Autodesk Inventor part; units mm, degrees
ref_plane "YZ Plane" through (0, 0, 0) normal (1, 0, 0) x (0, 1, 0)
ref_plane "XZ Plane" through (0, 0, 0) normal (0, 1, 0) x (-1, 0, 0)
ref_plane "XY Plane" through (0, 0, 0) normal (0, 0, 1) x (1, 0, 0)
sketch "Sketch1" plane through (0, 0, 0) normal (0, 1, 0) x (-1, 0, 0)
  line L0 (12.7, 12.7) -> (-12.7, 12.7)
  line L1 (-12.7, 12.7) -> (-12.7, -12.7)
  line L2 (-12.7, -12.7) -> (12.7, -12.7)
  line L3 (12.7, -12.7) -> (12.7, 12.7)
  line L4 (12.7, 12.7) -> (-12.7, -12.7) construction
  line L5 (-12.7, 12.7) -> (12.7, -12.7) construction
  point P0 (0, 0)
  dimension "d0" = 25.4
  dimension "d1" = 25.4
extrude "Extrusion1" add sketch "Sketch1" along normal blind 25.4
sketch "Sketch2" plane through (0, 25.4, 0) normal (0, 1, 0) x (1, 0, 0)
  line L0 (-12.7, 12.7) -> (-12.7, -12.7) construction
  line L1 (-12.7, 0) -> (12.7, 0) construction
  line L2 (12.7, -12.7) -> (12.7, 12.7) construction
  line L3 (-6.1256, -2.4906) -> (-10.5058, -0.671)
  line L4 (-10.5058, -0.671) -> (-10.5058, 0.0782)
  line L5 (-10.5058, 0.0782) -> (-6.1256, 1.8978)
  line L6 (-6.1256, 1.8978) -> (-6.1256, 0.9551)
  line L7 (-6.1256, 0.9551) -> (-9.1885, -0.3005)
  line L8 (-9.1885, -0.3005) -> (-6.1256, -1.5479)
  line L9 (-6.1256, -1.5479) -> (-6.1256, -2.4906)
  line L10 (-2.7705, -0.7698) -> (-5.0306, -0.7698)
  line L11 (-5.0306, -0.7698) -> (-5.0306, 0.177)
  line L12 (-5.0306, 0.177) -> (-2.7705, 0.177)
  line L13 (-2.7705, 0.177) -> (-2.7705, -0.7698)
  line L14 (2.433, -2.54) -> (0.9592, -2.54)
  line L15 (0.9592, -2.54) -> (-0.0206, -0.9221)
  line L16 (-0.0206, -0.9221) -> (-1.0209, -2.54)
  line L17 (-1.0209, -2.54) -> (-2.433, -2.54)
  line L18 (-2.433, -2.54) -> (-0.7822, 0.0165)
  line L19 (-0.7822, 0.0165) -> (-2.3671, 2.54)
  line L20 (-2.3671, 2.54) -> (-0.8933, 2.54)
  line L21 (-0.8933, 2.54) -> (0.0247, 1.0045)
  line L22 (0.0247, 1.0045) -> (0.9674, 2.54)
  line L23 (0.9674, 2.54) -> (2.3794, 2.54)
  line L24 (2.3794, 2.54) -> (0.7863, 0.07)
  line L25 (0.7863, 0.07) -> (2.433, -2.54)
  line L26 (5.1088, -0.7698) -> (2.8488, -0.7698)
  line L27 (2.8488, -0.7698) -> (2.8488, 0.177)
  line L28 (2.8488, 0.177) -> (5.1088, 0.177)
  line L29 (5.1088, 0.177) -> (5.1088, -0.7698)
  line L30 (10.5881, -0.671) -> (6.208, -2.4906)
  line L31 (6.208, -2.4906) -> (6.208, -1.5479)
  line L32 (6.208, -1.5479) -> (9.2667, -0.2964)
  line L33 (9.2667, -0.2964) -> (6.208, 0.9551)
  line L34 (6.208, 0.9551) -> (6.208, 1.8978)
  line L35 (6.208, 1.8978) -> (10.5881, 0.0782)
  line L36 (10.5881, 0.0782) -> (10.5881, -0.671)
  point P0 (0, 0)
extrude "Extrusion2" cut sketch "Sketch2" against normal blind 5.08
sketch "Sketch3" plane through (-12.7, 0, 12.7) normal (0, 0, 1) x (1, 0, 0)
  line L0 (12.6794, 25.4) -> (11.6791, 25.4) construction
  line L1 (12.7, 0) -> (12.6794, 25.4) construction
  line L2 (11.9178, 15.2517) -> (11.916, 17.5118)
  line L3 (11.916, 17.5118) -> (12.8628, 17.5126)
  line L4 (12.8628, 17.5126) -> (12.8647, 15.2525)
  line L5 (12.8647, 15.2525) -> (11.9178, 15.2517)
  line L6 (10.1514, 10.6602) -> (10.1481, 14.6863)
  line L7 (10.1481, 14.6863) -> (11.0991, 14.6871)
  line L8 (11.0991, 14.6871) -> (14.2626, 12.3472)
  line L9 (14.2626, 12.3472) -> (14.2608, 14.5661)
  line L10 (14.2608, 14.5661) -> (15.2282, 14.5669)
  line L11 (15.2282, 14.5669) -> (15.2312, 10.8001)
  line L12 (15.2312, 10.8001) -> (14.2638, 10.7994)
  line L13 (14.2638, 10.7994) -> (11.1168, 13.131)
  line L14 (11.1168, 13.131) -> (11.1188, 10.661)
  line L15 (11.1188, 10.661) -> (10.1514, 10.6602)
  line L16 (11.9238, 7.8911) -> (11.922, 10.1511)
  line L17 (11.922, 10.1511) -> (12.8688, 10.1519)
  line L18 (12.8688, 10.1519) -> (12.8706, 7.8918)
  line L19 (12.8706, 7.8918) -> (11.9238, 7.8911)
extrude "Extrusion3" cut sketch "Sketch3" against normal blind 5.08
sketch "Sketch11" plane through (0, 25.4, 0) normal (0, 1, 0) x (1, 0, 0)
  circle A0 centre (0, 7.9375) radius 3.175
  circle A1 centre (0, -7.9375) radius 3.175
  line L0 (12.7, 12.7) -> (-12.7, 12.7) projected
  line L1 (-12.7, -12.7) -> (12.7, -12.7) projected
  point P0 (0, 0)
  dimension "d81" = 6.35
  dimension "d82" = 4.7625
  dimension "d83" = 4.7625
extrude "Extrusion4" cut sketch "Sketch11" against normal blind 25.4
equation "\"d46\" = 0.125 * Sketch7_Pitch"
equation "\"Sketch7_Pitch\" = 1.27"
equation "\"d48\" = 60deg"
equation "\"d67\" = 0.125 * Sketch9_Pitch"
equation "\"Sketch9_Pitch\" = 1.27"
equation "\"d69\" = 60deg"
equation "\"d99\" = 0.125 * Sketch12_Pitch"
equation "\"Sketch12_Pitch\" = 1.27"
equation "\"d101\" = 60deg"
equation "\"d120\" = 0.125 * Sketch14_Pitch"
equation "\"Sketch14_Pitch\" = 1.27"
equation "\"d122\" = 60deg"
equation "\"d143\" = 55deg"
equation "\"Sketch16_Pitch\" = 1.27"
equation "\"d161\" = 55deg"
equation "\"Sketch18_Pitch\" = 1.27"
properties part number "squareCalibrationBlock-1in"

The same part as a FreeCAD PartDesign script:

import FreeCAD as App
import Part
import Sketcher
Q = App.Units.Quantity

doc = App.newDocument("Part")
body = doc.addObject("PartDesign::Body", "Body")

# Sketch on XZ plane
sketch1 = body.newObject("Sketcher::SketchObject", "Sketch")
sketch1.AttachmentSupport = (doc.getObject("XZ_Plane"), [""])
sketch1.MapMode = "FlatFace"
sketch1.addGeometry([
    Part.LineSegment(App.Vector(-13, -13, 0), App.Vector(-13, 13, 0)),
    Part.LineSegment(App.Vector(-13, 13, 0), App.Vector(13, 13, 0)),
    Part.LineSegment(App.Vector(13, 13, 0), App.Vector(13, -13, 0)),
    Part.LineSegment(App.Vector(13, -13, 0), App.Vector(-13, -13, 0)),
], False)
sketch1.addConstraint([
    Sketcher.Constraint("Coincident", 0, 2, 1, 1),
    Sketcher.Constraint("Coincident", 1, 2, 2, 1),
    Sketcher.Constraint("Coincident", 2, 2, 3, 1),
    Sketcher.Constraint("Coincident", 3, 2, 0, 1),
    Sketcher.Constraint("Vertical", 0),
    Sketcher.Constraint("Horizontal", 1),
    Sketcher.Constraint("Vertical", 2),
    Sketcher.Constraint("Horizontal", 3),
    Sketcher.Constraint("Symmetric", 0, 2, 2, 2, -1, 1),
    Sketcher.Constraint("Equal", 3, 0),
    Sketcher.Constraint("DistanceX", 1, 1, 1, 2, Q("1 in")),
])
pad1 = body.newObject("PartDesign::Pad", "Pad")
pad1.Profile = sketch1
pad1.Length = Q("1 in")
pad1.Reversed = True

# Sketch on XZ plane
sketch2 = body.newObject("Sketcher::SketchObject", "Sketch001")
sketch2.AttachmentSupport = (doc.getObject("XZ_Plane"), [""])
sketch2.MapMode = "FlatFace"
sketch2.AttachmentOffset = App.Placement(App.Vector(0, 0, -1 * 25.4), App.Rotation())
sketch2.addGeometry([
    Part.LineSegment(App.Vector(-10.5, 0.7, 0), App.Vector(-6.1, 2.5, 0)),  # 0
    Part.LineSegment(App.Vector(-6.1, 2.5, 0), App.Vector(-6.1, 1.5, 0)),  # 1
    Part.LineSegment(App.Vector(-6.1, 1.5, 0), App.Vector(-9.2, 0.3, 0)),  # 2
    Part.LineSegment(App.Vector(-9.2, 0.3, 0), App.Vector(-6.1, -1, 0)),  # 3
    Part.LineSegment(App.Vector(-6.1, -1, 0), App.Vector(-6.1, -1.9, 0)),  # 4
    Part.LineSegment(App.Vector(-6.1, -1.9, 0), App.Vector(-10.5, -0.1, 0)),  # 5
    Part.LineSegment(App.Vector(-10.5, -0.1, 0), App.Vector(-10.5, 0.7, 0)),  # 6
    Part.LineSegment(App.Vector(-5, 0.8, 0), App.Vector(-2.8, 0.8, 0)),  # 7
    Part.LineSegment(App.Vector(-2.8, 0.8, 0), App.Vector(-2.8, -0.2, 0)),  # 8
    Part.LineSegment(App.Vector(-2.8, -0.2, 0), App.Vector(-5, -0.2, 0)),  # 9
    Part.LineSegment(App.Vector(-5, -0.2, 0), App.Vector(-5, 0.8, 0)),  # 10
    Part.LineSegment(App.Vector(1, 2.5, 0), App.Vector(2.4, 2.5, 0)),  # 11
    Part.LineSegment(App.Vector(2.4, 2.5, 0), App.Vector(0.8, -0.1, 0)),  # 12
    Part.LineSegment(App.Vector(0.8, -0.1, 0), App.Vector(2.4, -2.5, 0)),  # 13
    Part.LineSegment(App.Vector(2.4, -2.5, 0), App.Vector(1, -2.5, 0)),  # 14
    Part.LineSegment(App.Vector(1, -2.5, 0), App.Vector(0, -1, 0)),  # 15
    Part.LineSegment(App.Vector(0, -1, 0), App.Vector(-0.9, -2.5, 0)),  # 16
    Part.LineSegment(App.Vector(-0.9, -2.5, 0), App.Vector(-2.4, -2.5, 0)),  # 17
    Part.LineSegment(App.Vector(-2.4, -2.5, 0), App.Vector(-0.8, 0, 0)),  # 18
    Part.LineSegment(App.Vector(-0.8, 0, 0), App.Vector(-2.4, 2.5, 0)),  # 19
    Part.LineSegment(App.Vector(-2.4, 2.5, 0), App.Vector(-1, 2.5, 0)),  # 20
    Part.LineSegment(App.Vector(-1, 2.5, 0), App.Vector(0, 0.9, 0)),  # 21
    Part.LineSegment(App.Vector(0, 0.9, 0), App.Vector(1, 2.5, 0)),  # 22
    Part.LineSegment(App.Vector(2.8, 0.8, 0), App.Vector(5.1, 0.8, 0)),  # 23
    Part.LineSegment(App.Vector(5.1, 0.8, 0), App.Vector(5.1, -0.2, 0)),  # 24
    Part.LineSegment(App.Vector(5.1, -0.2, 0), App.Vector(2.8, -0.2, 0)),  # 25
    Part.LineSegment(App.Vector(2.8, -0.2, 0), App.Vector(2.8, 0.8, 0)),  # 26
    Part.LineSegment(App.Vector(6.2, 2.5, 0), App.Vector(10.6, 0.7, 0)),  # 27
    Part.LineSegment(App.Vector(10.6, 0.7, 0), App.Vector(10.6, -0.1, 0)),  # 28
    Part.LineSegment(App.Vector(10.6, -0.1, 0), App.Vector(6.2, -1.9, 0)),  # 29
    Part.LineSegment(App.Vector(6.2, -1.9, 0), App.Vector(6.2, -1, 0)),  # 30
    Part.LineSegment(App.Vector(6.2, -1, 0), App.Vector(9.3, 0.3, 0)),  # 31
    Part.LineSegment(App.Vector(9.3, 0.3, 0), App.Vector(6.2, 1.5, 0)),  # 32
    Part.LineSegment(App.Vector(6.2, 1.5, 0), App.Vector(6.2, 2.5, 0)),  # 33
], False)
sketch2.addConstraint([
    Sketcher.Constraint("Coincident", 0, 2, 1, 1),
    Sketcher.Constraint("Coincident", 1, 2, 2, 1),
    Sketcher.Constraint("Coincident", 2, 2, 3, 1),
    Sketcher.Constraint("Coincident", 3, 2, 4, 1),
    Sketcher.Constraint("Coincident", 4, 2, 5, 1),
    Sketcher.Constraint("Coincident", 5, 2, 6, 1),
    Sketcher.Constraint("Coincident", 6, 2, 0, 1),
    Sketcher.Constraint("Coincident", 7, 2, 8, 1),
    Sketcher.Constraint("Coincident", 8, 2, 9, 1),
    Sketcher.Constraint("Coincident", 9, 2, 10, 1),
    Sketcher.Constraint("Coincident", 10, 2, 7, 1),
    Sketcher.Constraint("Coincident", 11, 2, 12, 1),
    Sketcher.Constraint("Coincident", 12, 2, 13, 1),
    Sketcher.Constraint("Coincident", 13, 2, 14, 1),
    Sketcher.Constraint("Coincident", 14, 2, 15, 1),
    Sketcher.Constraint("Coincident", 15, 2, 16, 1),
    Sketcher.Constraint("Coincident", 16, 2, 17, 1),
    Sketcher.Constraint("Coincident", 17, 2, 18, 1),
    Sketcher.Constraint("Coincident", 18, 2, 19, 1),
    Sketcher.Constraint("Coincident", 19, 2, 20, 1),
    Sketcher.Constraint("Coincident", 20, 2, 21, 1),
    Sketcher.Constraint("Coincident", 21, 2, 22, 1),
    Sketcher.Constraint("Coincident", 22, 2, 11, 1),
    Sketcher.Constraint("Coincident", 23, 2, 24, 1),
    Sketcher.Constraint("Coincident", 24, 2, 25, 1),
    Sketcher.Constraint("Coincident", 25, 2, 26, 1),
    Sketcher.Constraint("Coincident", 26, 2, 23, 1),
    Sketcher.Constraint("Coincident", 27, 2, 28, 1),
    Sketcher.Constraint("Coincident", 28, 2, 29, 1),
    Sketcher.Constraint("Coincident", 29, 2, 30, 1),
    Sketcher.Constraint("Coincident", 30, 2, 31, 1),
    Sketcher.Constraint("Coincident", 31, 2, 32, 1),
    Sketcher.Constraint("Coincident", 32, 2, 33, 1),
    Sketcher.Constraint("Coincident", 33, 2, 27, 1),
    Sketcher.Constraint("Vertical", 1),
    Sketcher.Constraint("Vertical", 4),
    Sketcher.Constraint("Vertical", 6),
    Sketcher.Constraint("Horizontal", 7),
    Sketcher.Constraint("Vertical", 8),
    Sketcher.Constraint("Horizontal", 9),
    Sketcher.Constraint("Vertical", 10),
    Sketcher.Constraint("Horizontal", 11),
    Sketcher.Constraint("Horizontal", 14),
    Sketcher.Constraint("Horizontal", 17),
    Sketcher.Constraint("Horizontal", 20),
    Sketcher.Constraint("Horizontal", 23),
    Sketcher.Constraint("Vertical", 24),
    Sketcher.Constraint("Horizontal", 25),
    Sketcher.Constraint("Vertical", 26),
    Sketcher.Constraint("Vertical", 28),
    Sketcher.Constraint("Vertical", 30),
    Sketcher.Constraint("Vertical", 33),
    Sketcher.Constraint("Symmetric", 11, 2, 19, 2, -2),
    Sketcher.Constraint("Parallel", 5, 27),
    Sketcher.Constraint("Parallel", 0, 29),
    Sketcher.Constraint("Horizontal", 14, 2, 16, 2),
    Sketcher.Constraint("Horizontal", 10, 2, 23, 2),
    Sketcher.Constraint("Horizontal", 9, 2, 24, 2),
    Sketcher.Constraint("Horizontal", 6, 2, 27, 2),
    Sketcher.Constraint("Horizontal", 5, 2, 28, 2),
    Sketcher.Constraint("Horizontal", 4, 2, 29, 2),
    Sketcher.Constraint("Horizontal", 3, 2, 30, 2),
    Sketcher.Constraint("Horizontal", 1, 2, 32, 2),
    Sketcher.Constraint("Horizontal", 0, 2, 33, 2),
    Sketcher.Constraint("Vertical", 1, 2, 3, 2),
    Sketcher.Constraint("Vertical", 30, 2, 32, 2),
    Sketcher.Constraint("Equal", 11, 17),
    Sketcher.Constraint("Equal", 14, 20),
    Sketcher.Constraint("Equal", 9, 23),
    Sketcher.Constraint("Equal", 1, 4),
    Sketcher.Constraint("Equal", 31, 32),
    Sketcher.Constraint("DistanceY", -1, 1, 11, 2, Q("0.1 in")),
    Sketcher.Constraint("DistanceY", 13, 2, -1, 1, Q("0.1 in")),
    Sketcher.Constraint("Angle", 22, Q("58.801 deg")),
    Sketcher.Constraint("Angle", 2, Q("-157.8408 deg")),
    Sketcher.Constraint("Angle", 3, Q("-22.2906 deg")),
    Sketcher.Constraint("Angle", 13, Q("-57.1788 deg")),
    Sketcher.Constraint("Angle", 18, Q("57.8689 deg")),
    Sketcher.Constraint("Angle", 27, Q("-22.5592 deg")),
    Sketcher.Constraint("DistanceX", 14, 2, 14, 1, Q("0.0556 in")),
    Sketcher.Constraint("DistanceY", 6, 1, 6, 2, Q("0.0295 in")),
    Sketcher.Constraint("DistanceX", 9, 2, 12, 2, Q("0.229 in")),
    Sketcher.Constraint("DistanceX", 19, 2, 18, 2, Q("0.065 in")),
    Sketcher.Constraint("DistanceY", 7, 2, 21, 2, Q("0.006 in")),
    Sketcher.Constraint("Distance", 2, Q("0.1302 in")),
    Sketcher.Constraint("Distance", 12, Q("0.1215 in")),
    Sketcher.Constraint("Distance", 19, Q("0.1198 in")),
    Sketcher.Constraint("Distance", 21, Q("0.0749 in")),
    Sketcher.Constraint("Distance", 31, Q("0.1301 in")),
    Sketcher.Constraint("DistanceX", 7, 1, 7, 2, Q("2.26 mm")),
    Sketcher.Constraint("DistanceX", 11, 1, 11, 2, Q("1.4738 mm")),
    Sketcher.Constraint("DistanceY", 1, 2, 1, 1, Q("0.9427 mm")),
    Sketcher.Constraint("DistanceY", 8, 2, 8, 1, Q("0.9468 mm")),
    Sketcher.Constraint("DistanceY", 3, 2, -1, 1, Q("0.0376 in")),
    Sketcher.Constraint("DistanceY", -1, 1, 7, 2, Q("0.0303 in")),
    Sketcher.Constraint("DistanceX", -1, 1, 29, 2, Q("0.2444 in")),
    Sketcher.Constraint("DistanceX", 1, 2, 7, 2, Q("0.1321 in")),
    Sketcher.Constraint("DistanceX", 13, 2, 11, 2, Q("0.0021 in")),
    Sketcher.Constraint("DistanceY", 15, 2, 12, 2, Q("0.0368 in")),
    Sketcher.Constraint("DistanceX", 15, 2, 13, 2, Q("0.0927 in")),
    Sketcher.Constraint("DistanceX", 12, 2, 25, 2, Q("0.0812 in")),
])
pocket1 = body.newObject("PartDesign::Pocket", "Pocket")
pocket1.Profile = sketch2
pocket1.Length = Q("0.2 in")
pocket1.Reversed = True

# Sketch on XY plane
sketch3 = body.newObject("Sketcher::SketchObject", "Sketch002")
sketch3.AttachmentSupport = (doc.getObject("XY_Plane"), [""])
sketch3.MapMode = "FlatFace"
sketch3.AttachmentOffset = App.Placement(App.Vector(0, 0, 0.5 * 25.4), App.Rotation())
sketch3.addGeometry([
    Part.LineSegment(App.Vector(-0.8, 17.5, 0), App.Vector(-0.8, 15.3, 0)),  # 0
    Part.LineSegment(App.Vector(-0.8, 15.3, 0), App.Vector(0.2, 15.3, 0)),  # 1
    Part.LineSegment(App.Vector(0.2, 15.3, 0), App.Vector(0.2, 17.5, 0)),  # 2
    Part.LineSegment(App.Vector(0.2, 17.5, 0), App.Vector(-0.8, 17.5, 0)),  # 3
    Part.LineSegment(App.Vector(-2.6, 14.7, 0), App.Vector(-2.5, 10.7, 0)),  # 4
    Part.LineSegment(App.Vector(-2.5, 10.7, 0), App.Vector(-1.6, 10.7, 0)),  # 5
    Part.LineSegment(App.Vector(-1.6, 10.7, 0), App.Vector(-1.6, 13.1, 0)),  # 6
    Part.LineSegment(App.Vector(-1.6, 13.1, 0), App.Vector(1.6, 10.8, 0)),  # 7
    Part.LineSegment(App.Vector(1.6, 10.8, 0), App.Vector(2.5, 10.8, 0)),  # 8
    Part.LineSegment(App.Vector(2.5, 10.8, 0), App.Vector(2.5, 14.6, 0)),  # 9
    Part.LineSegment(App.Vector(2.5, 14.6, 0), App.Vector(1.6, 14.6, 0)),  # 10
    Part.LineSegment(App.Vector(1.6, 14.6, 0), App.Vector(1.6, 12.3, 0)),  # 11
    Part.LineSegment(App.Vector(1.6, 12.3, 0), App.Vector(-1.6, 14.7, 0)),  # 12
    Part.LineSegment(App.Vector(-1.6, 14.7, 0), App.Vector(-2.6, 14.7, 0)),  # 13
    Part.LineSegment(App.Vector(-0.8, 10.2, 0), App.Vector(-0.8, 7.9, 0)),  # 14
    Part.LineSegment(App.Vector(-0.8, 7.9, 0), App.Vector(0.2, 7.9, 0)),  # 15
    Part.LineSegment(App.Vector(0.2, 7.9, 0), App.Vector(0.2, 10.2, 0)),  # 16
    Part.LineSegment(App.Vector(0.2, 10.2, 0), App.Vector(-0.8, 10.2, 0)),  # 17
], False)
sketch3.addConstraint([
    Sketcher.Constraint("Coincident", 0, 2, 1, 1),
    Sketcher.Constraint("Coincident", 1, 2, 2, 1),
    Sketcher.Constraint("Coincident", 2, 2, 3, 1),
    Sketcher.Constraint("Coincident", 3, 2, 0, 1),
    Sketcher.Constraint("Coincident", 4, 2, 5, 1),
    Sketcher.Constraint("Coincident", 5, 2, 6, 1),
    Sketcher.Constraint("Coincident", 6, 2, 7, 1),
    Sketcher.Constraint("Coincident", 7, 2, 8, 1),
    Sketcher.Constraint("Coincident", 8, 2, 9, 1),
    Sketcher.Constraint("Coincident", 9, 2, 10, 1),
    Sketcher.Constraint("Coincident", 10, 2, 11, 1),
    Sketcher.Constraint("Coincident", 11, 2, 12, 1),
    Sketcher.Constraint("Coincident", 12, 2, 13, 1),
    Sketcher.Constraint("Coincident", 13, 2, 4, 1),
    Sketcher.Constraint("Coincident", 14, 2, 15, 1),
    Sketcher.Constraint("Coincident", 15, 2, 16, 1),
    Sketcher.Constraint("Coincident", 16, 2, 17, 1),
    Sketcher.Constraint("Coincident", 17, 2, 14, 1),
    Sketcher.Constraint("Perpendicular", 0, 1),
    Sketcher.Constraint("Perpendicular", 1, 2),
    Sketcher.Constraint("Perpendicular", 2, 3),
    Sketcher.Constraint("Perpendicular", 3, 4),
    Sketcher.Constraint("Perpendicular", 4, 5),
    Sketcher.Constraint("Perpendicular", 5, 6),
    Sketcher.Constraint("Perpendicular", 6, 8),
    Sketcher.Constraint("Perpendicular", 8, 9),
    Sketcher.Constraint("Perpendicular", 9, 10),
    Sketcher.Constraint("Perpendicular", 10, 11),
    Sketcher.Constraint("Perpendicular", 11, 13),
    Sketcher.Constraint("Perpendicular", 13, 14),
    Sketcher.Constraint("Perpendicular", 14, 15),
    Sketcher.Constraint("Perpendicular", 15, 16),
    Sketcher.Constraint("Perpendicular", 16, 17),
    Sketcher.Constraint("Equal", 5, 8),
    Sketcher.Constraint("Equal", 8, 10),
    Sketcher.Constraint("Equal", 2, 14),
    Sketcher.Constraint("Equal", 3, 15),
    Sketcher.Constraint("DistanceX", 4, 2, 8, 2, Q("0.2 in")),
    Sketcher.Constraint("DistanceY", 0, 2, 2, 2, Q("0.089 in")),
    Sketcher.Constraint("DistanceX", 4, 2, 6, 2, Q("0.038 in")),
    Sketcher.Constraint("DistanceY", 9, 2, 1, 2, Q("0.027 in")),
    Sketcher.Constraint("DistanceY", 15, 2, 4, 2, Q("0.109 in")),
    Sketcher.Constraint("DistanceX", 16, 2, 8, 2, Q("0.093 in")),
    Sketcher.Constraint("Distance", 4, Q("0.1585 in")),
    Sketcher.Constraint("Distance", 7, Q("0.1542 in")),
    Sketcher.Constraint("Distance", 9, Q("0.1483 in")),
    Sketcher.Constraint("DistanceX", 0, 2, -1, 1, Q("0.0308 in")),
    Sketcher.Constraint("DistanceY", -1, 1, 1, 2, Q("0.6005 in")),
    Sketcher.Constraint("DistanceX", -1, 1, 2, 2, Q("0.0064 in")),
    Sketcher.Constraint("DistanceY", -1, 1, 4, 2, Q("0.4197 in")),
    Sketcher.Constraint("DistanceY", -1, 1, 11, 2, Q("0.4861 in")),
    Sketcher.Constraint("DistanceY", 6, 2, 0, 2, Q("0.0835 in")),
    Sketcher.Constraint("DistanceX", 12, 2, 6, 2, Q("0.0007 in")),
    Sketcher.Constraint("DistanceX", 12, 2, 1, 2, Q("0.0695 in")),
])
pocket2 = body.newObject("PartDesign::Pocket", "Pocket001")
pocket2.Profile = sketch3
pocket2.Length = Q("0.2 in")

# Sketch on XZ plane
sketch4 = body.newObject("Sketcher::SketchObject", "Sketch003")
sketch4.AttachmentSupport = (doc.getObject("XZ_Plane"), [""])
sketch4.MapMode = "FlatFace"
sketch4.AttachmentOffset = App.Placement(App.Vector(0, 0, -1 * 25.4), App.Rotation())
sketch4.addGeometry([
    Part.Circle(App.Vector(0, -7.9, 0), App.Vector(0, 0, 1), 3.2),
    Part.Circle(App.Vector(0, 7.9, 0), App.Vector(0, 0, 1), 3.2),
], False)
sketch4.addConstraint([
    Sketcher.Constraint("Equal", 0, 1),
    Sketcher.Constraint("Symmetric", 0, 3, 1, 3, -1, 1),
    Sketcher.Constraint("PointOnObject", 0, 3, -2),
    Sketcher.Constraint("Diameter", 0, Q("0.25 in")),
    Sketcher.Constraint("DistanceY", 0, 3, -1, 1, Q("0.3125 in")),
])
pocket3 = body.newObject("PartDesign::Pocket", "Pocket002")
pocket3.Profile = sketch4
pocket3.Length = Q("1 in")
pocket3.Reversed = True

doc.recompute()
